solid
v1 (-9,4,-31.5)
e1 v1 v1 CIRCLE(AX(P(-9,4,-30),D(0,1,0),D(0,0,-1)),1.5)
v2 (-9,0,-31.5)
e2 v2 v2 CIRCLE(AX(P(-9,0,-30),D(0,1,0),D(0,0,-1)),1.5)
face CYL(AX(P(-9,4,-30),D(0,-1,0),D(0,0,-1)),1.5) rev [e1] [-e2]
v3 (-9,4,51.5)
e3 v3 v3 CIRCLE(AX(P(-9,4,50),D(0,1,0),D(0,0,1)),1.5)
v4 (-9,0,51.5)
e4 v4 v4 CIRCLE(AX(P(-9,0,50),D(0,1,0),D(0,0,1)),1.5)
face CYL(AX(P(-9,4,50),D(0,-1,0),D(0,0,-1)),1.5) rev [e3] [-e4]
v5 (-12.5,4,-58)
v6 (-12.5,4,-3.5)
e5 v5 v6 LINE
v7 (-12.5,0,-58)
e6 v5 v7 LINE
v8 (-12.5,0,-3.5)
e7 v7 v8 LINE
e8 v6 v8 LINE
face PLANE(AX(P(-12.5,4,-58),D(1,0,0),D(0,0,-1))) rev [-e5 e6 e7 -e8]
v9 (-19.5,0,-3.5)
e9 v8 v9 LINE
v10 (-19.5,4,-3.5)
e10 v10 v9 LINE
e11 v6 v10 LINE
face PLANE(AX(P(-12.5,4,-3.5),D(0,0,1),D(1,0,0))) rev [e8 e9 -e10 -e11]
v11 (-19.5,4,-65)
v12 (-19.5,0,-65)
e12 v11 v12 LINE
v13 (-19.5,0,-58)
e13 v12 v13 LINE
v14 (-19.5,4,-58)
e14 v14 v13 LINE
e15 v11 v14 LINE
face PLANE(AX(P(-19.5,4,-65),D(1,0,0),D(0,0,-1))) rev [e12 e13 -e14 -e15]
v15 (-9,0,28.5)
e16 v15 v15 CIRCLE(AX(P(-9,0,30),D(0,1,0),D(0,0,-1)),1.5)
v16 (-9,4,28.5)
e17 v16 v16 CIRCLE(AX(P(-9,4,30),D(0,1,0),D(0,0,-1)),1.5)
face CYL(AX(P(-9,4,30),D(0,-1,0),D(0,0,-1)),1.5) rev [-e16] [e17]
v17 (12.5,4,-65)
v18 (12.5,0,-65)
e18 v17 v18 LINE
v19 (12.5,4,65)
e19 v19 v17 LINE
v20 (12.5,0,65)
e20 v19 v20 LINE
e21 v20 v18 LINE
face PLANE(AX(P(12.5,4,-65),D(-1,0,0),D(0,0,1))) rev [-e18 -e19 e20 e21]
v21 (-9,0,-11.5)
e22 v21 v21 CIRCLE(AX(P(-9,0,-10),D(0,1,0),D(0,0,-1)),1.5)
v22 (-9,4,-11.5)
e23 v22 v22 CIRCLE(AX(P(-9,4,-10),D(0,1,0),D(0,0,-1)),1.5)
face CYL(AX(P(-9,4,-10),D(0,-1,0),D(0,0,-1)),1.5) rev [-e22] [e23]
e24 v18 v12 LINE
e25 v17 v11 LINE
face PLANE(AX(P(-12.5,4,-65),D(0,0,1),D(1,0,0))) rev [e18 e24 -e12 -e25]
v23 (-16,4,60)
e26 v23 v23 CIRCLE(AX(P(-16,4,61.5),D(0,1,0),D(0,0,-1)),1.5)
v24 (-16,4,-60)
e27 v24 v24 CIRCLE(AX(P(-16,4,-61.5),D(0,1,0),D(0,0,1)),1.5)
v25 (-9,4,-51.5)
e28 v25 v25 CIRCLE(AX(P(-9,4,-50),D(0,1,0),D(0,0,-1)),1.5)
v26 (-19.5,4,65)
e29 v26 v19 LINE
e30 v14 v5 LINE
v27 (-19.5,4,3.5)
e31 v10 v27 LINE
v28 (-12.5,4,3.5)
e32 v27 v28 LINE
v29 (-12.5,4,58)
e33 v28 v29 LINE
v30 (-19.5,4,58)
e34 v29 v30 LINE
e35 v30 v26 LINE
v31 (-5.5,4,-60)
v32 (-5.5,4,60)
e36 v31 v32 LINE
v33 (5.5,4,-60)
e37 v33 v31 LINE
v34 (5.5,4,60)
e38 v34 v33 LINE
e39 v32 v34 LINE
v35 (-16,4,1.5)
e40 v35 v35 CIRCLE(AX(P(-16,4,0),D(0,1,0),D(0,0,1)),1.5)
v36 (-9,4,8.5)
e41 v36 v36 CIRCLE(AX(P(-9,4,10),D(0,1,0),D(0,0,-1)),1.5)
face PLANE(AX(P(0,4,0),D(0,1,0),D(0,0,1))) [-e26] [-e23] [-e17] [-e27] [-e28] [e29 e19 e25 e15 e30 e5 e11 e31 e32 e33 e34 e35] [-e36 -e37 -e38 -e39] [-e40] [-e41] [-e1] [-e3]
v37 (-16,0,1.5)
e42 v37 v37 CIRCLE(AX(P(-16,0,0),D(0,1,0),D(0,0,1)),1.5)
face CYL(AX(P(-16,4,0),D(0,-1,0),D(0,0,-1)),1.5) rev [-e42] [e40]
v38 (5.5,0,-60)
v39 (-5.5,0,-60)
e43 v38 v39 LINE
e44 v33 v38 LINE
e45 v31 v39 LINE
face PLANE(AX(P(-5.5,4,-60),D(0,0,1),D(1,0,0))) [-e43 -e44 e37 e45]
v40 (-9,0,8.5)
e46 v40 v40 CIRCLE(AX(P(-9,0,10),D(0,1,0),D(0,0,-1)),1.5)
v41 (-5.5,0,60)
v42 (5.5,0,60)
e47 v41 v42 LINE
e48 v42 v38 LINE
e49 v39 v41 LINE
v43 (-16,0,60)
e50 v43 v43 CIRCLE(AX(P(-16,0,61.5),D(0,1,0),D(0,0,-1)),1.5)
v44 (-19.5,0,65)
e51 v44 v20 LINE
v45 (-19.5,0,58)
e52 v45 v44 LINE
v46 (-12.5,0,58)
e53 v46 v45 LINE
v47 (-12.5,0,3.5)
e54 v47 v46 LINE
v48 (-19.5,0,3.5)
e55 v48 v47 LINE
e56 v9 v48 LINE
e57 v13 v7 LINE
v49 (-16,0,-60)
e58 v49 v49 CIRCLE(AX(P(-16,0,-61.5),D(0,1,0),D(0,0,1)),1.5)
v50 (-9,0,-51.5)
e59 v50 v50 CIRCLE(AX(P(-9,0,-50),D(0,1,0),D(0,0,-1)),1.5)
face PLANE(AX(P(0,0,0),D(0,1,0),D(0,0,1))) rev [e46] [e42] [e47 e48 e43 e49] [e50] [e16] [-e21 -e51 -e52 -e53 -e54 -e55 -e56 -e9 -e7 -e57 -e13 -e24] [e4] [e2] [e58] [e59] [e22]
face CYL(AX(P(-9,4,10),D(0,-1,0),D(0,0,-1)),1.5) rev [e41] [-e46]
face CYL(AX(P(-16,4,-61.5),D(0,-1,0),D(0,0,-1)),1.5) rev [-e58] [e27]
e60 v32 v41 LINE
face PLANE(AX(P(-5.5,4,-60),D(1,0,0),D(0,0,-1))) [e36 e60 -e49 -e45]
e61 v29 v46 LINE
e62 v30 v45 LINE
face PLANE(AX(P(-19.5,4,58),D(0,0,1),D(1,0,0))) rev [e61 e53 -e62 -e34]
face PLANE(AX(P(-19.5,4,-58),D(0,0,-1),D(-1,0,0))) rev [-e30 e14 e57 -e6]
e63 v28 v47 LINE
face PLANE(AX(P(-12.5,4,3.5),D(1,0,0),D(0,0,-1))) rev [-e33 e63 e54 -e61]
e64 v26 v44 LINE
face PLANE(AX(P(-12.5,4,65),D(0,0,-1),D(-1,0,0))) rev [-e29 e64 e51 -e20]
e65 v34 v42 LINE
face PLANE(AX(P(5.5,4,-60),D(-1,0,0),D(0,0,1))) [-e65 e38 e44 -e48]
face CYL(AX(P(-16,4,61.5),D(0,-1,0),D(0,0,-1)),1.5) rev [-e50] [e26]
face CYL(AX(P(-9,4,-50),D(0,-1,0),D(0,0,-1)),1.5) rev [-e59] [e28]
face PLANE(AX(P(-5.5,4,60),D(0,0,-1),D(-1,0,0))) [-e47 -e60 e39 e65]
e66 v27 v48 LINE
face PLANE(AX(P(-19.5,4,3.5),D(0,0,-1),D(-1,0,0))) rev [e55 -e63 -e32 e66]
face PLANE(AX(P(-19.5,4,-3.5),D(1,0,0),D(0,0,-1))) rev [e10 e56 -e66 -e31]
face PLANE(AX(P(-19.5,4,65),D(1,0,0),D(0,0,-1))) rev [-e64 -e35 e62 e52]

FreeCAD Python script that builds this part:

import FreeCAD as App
import Part
import Sketcher
Q = App.Units.Quantity


def add_polygon(sketch, points):
    """Adds a closed chain of lines whose ends are joined by coincident constraints."""
    first, n = sketch.GeometryCount, len(points)
    for a, b in zip(points, points[1:] + points[:1]):
        sketch.addGeometry(Part.LineSegment(App.Vector(*a, 0), App.Vector(*b, 0)), False)
    for i in range(n):
        sketch.addConstraint(Sketcher.Constraint("Coincident", first + i, 2, first + (i + 1) % n, 1))

doc = App.newDocument("Part")
body = doc.addObject("PartDesign::Body", "Body")

# Sketch on XZ plane
sketch1 = body.newObject("Sketcher::SketchObject", "Sketch")
sketch1.AttachmentSupport = (doc.getObject("XZ_Plane"), [""])
sketch1.MapMode = "FlatFace"
add_polygon(sketch1, [(12.5, -65), (-19.5, -65), (-19.5, -58), (-12.5, -58), (-12.5, -3.5), (-19.5, -3.5), (-19.5, 3.5), (-12.5, 3.5), (-12.5, 58), (-19.5, 58), (-19.5, 65), (12.5, 65)])  # lines 0-11
sketch1.addGeometry(Part.Circle(App.Vector(-9, 50, 0), App.Vector(0, 0, 1), 1.5), False)  # 12
sketch1.addGeometry(Part.Circle(App.Vector(-16, 61.5, 0), App.Vector(0, 0, 1), 1.5), False)  # 13
sketch1.addGeometry(Part.Circle(App.Vector(-9, 30, 0), App.Vector(0, 0, 1), 1.5), False)  # 14
sketch1.addGeometry(Part.Circle(App.Vector(-9, 10, 0), App.Vector(0, 0, 1), 1.5), False)  # 15
add_polygon(sketch1, [(-5.5, 60), (-5.5, -60), (5.5, -60), (5.5, 60)])  # lines 16-19
sketch1.addGeometry(Part.Circle(App.Vector(-9, -10, 0), App.Vector(0, 0, 1), 1.5), False)  # 20
sketch1.addGeometry(Part.Circle(App.Vector(-9, -30, 0), App.Vector(0, 0, 1), 1.5), False)  # 21
sketch1.addGeometry(Part.Circle(App.Vector(-16, 0, 0), App.Vector(0, 0, 1), 1.5), False)  # 22
sketch1.addGeometry(Part.Circle(App.Vector(-9, -50, 0), App.Vector(0, 0, 1), 1.5), False)  # 23
sketch1.addGeometry(Part.Circle(App.Vector(-16, -61.5, 0), App.Vector(0, 0, 1), 1.5), False)  # 24
sketch1.addConstraint(Sketcher.Constraint("Horizontal", 0))
sketch1.addConstraint(Sketcher.Constraint("Vertical", 1))
sketch1.addConstraint(Sketcher.Constraint("Horizontal", 2))
sketch1.addConstraint(Sketcher.Constraint("Vertical", 3))
sketch1.addConstraint(Sketcher.Constraint("Horizontal", 4))
sketch1.addConstraint(Sketcher.Constraint("Vertical", 5))
sketch1.addConstraint(Sketcher.Constraint("Horizontal", 6))
sketch1.addConstraint(Sketcher.Constraint("Vertical", 7))
sketch1.addConstraint(Sketcher.Constraint("Horizontal", 8))
sketch1.addConstraint(Sketcher.Constraint("Vertical", 9))
sketch1.addConstraint(Sketcher.Constraint("Horizontal", 10))
sketch1.addConstraint(Sketcher.Constraint("Vertical", 11))
sketch1.addConstraint(Sketcher.Constraint("Vertical", 16))
sketch1.addConstraint(Sketcher.Constraint("Horizontal", 17))
sketch1.addConstraint(Sketcher.Constraint("Vertical", 18))
sketch1.addConstraint(Sketcher.Constraint("Horizontal", 19))
sketch1.addConstraint(Sketcher.Constraint("Equal", 12, 13))
sketch1.addConstraint(Sketcher.Constraint("Equal", 13, 14))
sketch1.addConstraint(Sketcher.Constraint("Equal", 14, 15))
sketch1.addConstraint(Sketcher.Constraint("Equal", 15, 20))
sketch1.addConstraint(Sketcher.Constraint("Equal", 20, 21))
sketch1.addConstraint(Sketcher.Constraint("Equal", 21, 22))
sketch1.addConstraint(Sketcher.Constraint("Equal", 22, 23))
sketch1.addConstraint(Sketcher.Constraint("Equal", 23, 24))
sketch1.addConstraint(Sketcher.Constraint("Symmetric", 16, 2, 18, 2, -1, 1))
sketch1.addConstraint(Sketcher.Constraint("Symmetric", 15, 3, 20, 3, -1))
sketch1.addConstraint(Sketcher.Constraint("Symmetric", 14, 3, 21, 3, -1))
sketch1.addConstraint(Sketcher.Constraint("Symmetric", 12, 3, 23, 3, -1))
sketch1.addConstraint(Sketcher.Constraint("Symmetric", 13, 3, 24, 3, -1))
sketch1.addConstraint(Sketcher.Constraint("Symmetric", 3, 2, 6, 2, -1))
sketch1.addConstraint(Sketcher.Constraint("Symmetric", 1, 2, 8, 2, -1))
sketch1.addConstraint(Sketcher.Constraint("PointOnObject", 22, 3, -1))
sketch1.addConstraint(Sketcher.Constraint("Vertical", 12, 3, 14, 3))
sketch1.addConstraint(Sketcher.Constraint("Vertical", 14, 3, 15, 3))
sketch1.addConstraint(Sketcher.Constraint("Vertical", 13, 3, 22, 3))
sketch1.addConstraint(Sketcher.Constraint("Vertical", 1, 2, 4, 2))
sketch1.addConstraint(Sketcher.Constraint("Equal", 8, 1))
sketch1.addConstraint(Sketcher.Constraint("Equal", 1, 5))
sketch1.addConstraint(Sketcher.Constraint("Equal", 5, 9))
sketch1.addConstraint(Sketcher.Constraint("Diameter", 12, Q("3 mm")))
sketch1.addConstraint(Sketcher.Constraint("DistanceX", 0, 2, 0, 1, Q("32 mm")))
sketch1.addConstraint(Sketcher.Constraint("DistanceX", 2, 1, 2, 2, Q("7 mm")))
sketch1.addConstraint(Sketcher.Constraint("DistanceX", 17, 1, 17, 2, Q("11 mm")))
sketch1.addConstraint(Sketcher.Constraint("DistanceY", 11, 2, 11, 1, Q("130 mm")))
sketch1.addConstraint(Sketcher.Constraint("DistanceY", 16, 2, 16, 1, Q("120 mm")))
sketch1.addConstraint(Sketcher.Constraint("DistanceX", 12, 3, -1, 1, Q("9 mm")))
sketch1.addConstraint(Sketcher.Constraint("DistanceY", -1, 1, 12, 3, Q("50 mm")))
sketch1.addConstraint(Sketcher.Constraint("DistanceX", 13, 3, -1, 1, Q("16 mm")))
sketch1.addConstraint(Sketcher.Constraint("DistanceY", -1, 1, 14, 3, Q("30 mm")))
sketch1.addConstraint(Sketcher.Constraint("DistanceY", -1, 1, 15, 3, Q("10 mm")))
sketch1.addConstraint(Sketcher.Constraint("DistanceX", 2, 2, 16, 2, Q("7 mm")))
sketch1.addConstraint(Sketcher.Constraint("DistanceY", -1, 1, 13, 3, Q("61.5 mm")))
pad1 = body.newObject("PartDesign::Pad", "Pad")
pad1.Profile = sketch1
pad1.Length = 4
pad1.Reversed = True

doc.recompute()
